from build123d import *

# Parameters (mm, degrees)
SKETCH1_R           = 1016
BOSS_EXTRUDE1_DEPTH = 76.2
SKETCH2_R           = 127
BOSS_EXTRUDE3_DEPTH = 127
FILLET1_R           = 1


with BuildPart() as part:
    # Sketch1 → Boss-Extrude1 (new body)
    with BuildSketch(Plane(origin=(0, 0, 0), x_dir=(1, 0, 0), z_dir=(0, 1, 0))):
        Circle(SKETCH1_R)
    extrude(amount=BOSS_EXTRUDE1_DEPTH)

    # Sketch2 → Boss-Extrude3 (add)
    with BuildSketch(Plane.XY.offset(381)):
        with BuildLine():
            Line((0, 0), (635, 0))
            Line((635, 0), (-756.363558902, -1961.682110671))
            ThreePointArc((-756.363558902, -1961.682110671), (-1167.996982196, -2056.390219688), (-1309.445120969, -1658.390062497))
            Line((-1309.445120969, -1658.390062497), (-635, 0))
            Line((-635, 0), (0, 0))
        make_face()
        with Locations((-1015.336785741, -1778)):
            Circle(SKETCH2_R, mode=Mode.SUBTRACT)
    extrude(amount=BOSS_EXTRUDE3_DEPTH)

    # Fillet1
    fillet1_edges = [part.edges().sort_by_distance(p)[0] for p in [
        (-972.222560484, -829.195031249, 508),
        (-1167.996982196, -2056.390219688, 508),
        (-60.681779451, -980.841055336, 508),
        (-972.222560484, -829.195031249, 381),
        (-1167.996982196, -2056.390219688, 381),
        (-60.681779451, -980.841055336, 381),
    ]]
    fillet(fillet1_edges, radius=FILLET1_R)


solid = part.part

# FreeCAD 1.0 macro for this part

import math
import FreeCAD as App
import Part
import Sketcher

V = App.Vector
Q = App.Units.Quantity


def edges_at(feature, points):
    """Names of the edges that pass closest to the given points."""
    edges = feature.Shape.Edges
    near = lambda p: min(range(len(edges)), key=lambda i: edges[i].distToShape(Part.Vertex(*p))[0])
    return sorted({f"Edge{near(p) + 1}" for p in points})

doc = App.newDocument("Part")
params = doc.addObject("Spreadsheet::Sheet", "Params")
for row, (alias, value) in enumerate([
    ("sketch1_diameter", "80 in"),
    ("pad1_length", "3 in"),
    ("sketch2_diameter", "10 in"),
    ("sketch2_radius", "12.5 in"),
    ("sketch2_width", "50 in"),
    ("pad2_length", "5 in"),
    ("fillet_radius", "1 mm"),
], start=1):
    params.set(f"A{row}", alias)
    params.set(f"B{row}", "=" + value)
    params.setAlias(f"B{row}", alias)

body = doc.addObject("PartDesign::Body", "Body")

# Sketch on XZ plane
sketch1 = doc.addObject("Sketcher::SketchObject", "Sketch")
body.addObject(sketch1)
sketch1.AttachmentSupport = (doc.XZ_Plane, [""])
sketch1.MapMode = "FlatFace"
sketch1.addGeometry(Part.Circle(V(0, 0, 0), V(0, 0, 1), 1016), False)
sketch1.addConstraint(Sketcher.Constraint("Coincident", 0, 3, -1, 1))
sketch1.addConstraint(Sketcher.Constraint("Diameter", 0, Q("80 in")))
sketch1.setExpression("Constraints[1]", "Params.sketch1_diameter")
pad1 = doc.addObject("PartDesign::Pad", "Pad")
body.addObject(pad1)
pad1.Profile = sketch1
pad1.setExpression("Length", "Params.pad1_length")
pad1.Reversed = True

# Sketch on XY plane
sketch2 = doc.addObject("Sketcher::SketchObject", "Sketch001")
body.addObject(sketch2)
sketch2.AttachmentSupport = (doc.XY_Plane, [""])
sketch2.MapMode = "FlatFace"
sketch2.AttachmentOffset = App.Placement(V(0, 0, 15 * 25.4), App.Rotation())
sketch2.addGeometry(Part.LineSegment(V(-756, -1962, 0), V(635, 0, 0)), False)
sketch2.addGeometry(Part.LineSegment(V(635, 0, 0), V(-635, 0, 0)), False)
sketch2.addGeometry(Part.LineSegment(V(-635, 0, 0), V(-1309, -1658, 0)), False)
sketch2.addGeometry(Part.ArcOfCircle(Part.Circle(V(-1015, -1778, 0), V(0, 0, 1), 318), math.radians(158), math.radians(325)), False)
sketch2.addGeometry(Part.Circle(V(-1015, -1778, 0), V(0, 0, 1), 127), False)
sketch2.addConstraint(Sketcher.Constraint("Coincident", 0, 2, 1, 1))
sketch2.addConstraint(Sketcher.Constraint("Coincident", 1, 2, 2, 1))
sketch2.addConstraint(Sketcher.Constraint("Tangent", 2, 2, 3, 1))
sketch2.addConstraint(Sketcher.Constraint("Tangent", 3, 2, 0, 1))
sketch2.addConstraint(Sketcher.Constraint("Horizontal", 1))
sketch2.addConstraint(Sketcher.Constraint("Coincident", 4, 3, 3, 3))
sketch2.addConstraint(Sketcher.Constraint("Symmetric", 0, 2, 1, 2, -1, 1))
sketch2.addConstraint(Sketcher.Constraint("Diameter", 4, Q("10 in")))
sketch2.addConstraint(Sketcher.Constraint("Radius", 3, Q("12.5 in")))
sketch2.addConstraint(Sketcher.Constraint("DistanceX", 1, 2, 1, 1, Q("50 in")))
sketch2.addConstraint(Sketcher.Constraint("DistanceY", 3, 3, -1, 1, Q("70 in")))
sketch2.addConstraint(Sketcher.Constraint("Distance", 0, Q("2405.013359 mm")))
sketch2.setExpression("Constraints[7]", "Params.sketch2_diameter")
sketch2.setExpression("Constraints[8]", "Params.sketch2_radius")
sketch2.setExpression("Constraints[9]", "Params.sketch2_width")
pad2 = doc.addObject("PartDesign::Pad", "Pad001")
body.addObject(pad2)
pad2.Profile = sketch2
pad2.setExpression("Length", "Params.pad2_length")
doc.recompute()

fillet = doc.addObject("PartDesign::Fillet", "Fillet")
body.addObject(fillet)
fillet.Base = (pad2, edges_at(pad2, [
    (-972.223, -829.195, 508),
    (-1167.997, -2056.39, 508),
    (-60.682, -980.841, 508),
    (-972.223, -829.195, 381),
    (-1167.997, -2056.39, 381),
    (-60.682, -980.841, 381),
]))
fillet.setExpression("Radius", "Params.fillet_radius")

doc.recompute()
